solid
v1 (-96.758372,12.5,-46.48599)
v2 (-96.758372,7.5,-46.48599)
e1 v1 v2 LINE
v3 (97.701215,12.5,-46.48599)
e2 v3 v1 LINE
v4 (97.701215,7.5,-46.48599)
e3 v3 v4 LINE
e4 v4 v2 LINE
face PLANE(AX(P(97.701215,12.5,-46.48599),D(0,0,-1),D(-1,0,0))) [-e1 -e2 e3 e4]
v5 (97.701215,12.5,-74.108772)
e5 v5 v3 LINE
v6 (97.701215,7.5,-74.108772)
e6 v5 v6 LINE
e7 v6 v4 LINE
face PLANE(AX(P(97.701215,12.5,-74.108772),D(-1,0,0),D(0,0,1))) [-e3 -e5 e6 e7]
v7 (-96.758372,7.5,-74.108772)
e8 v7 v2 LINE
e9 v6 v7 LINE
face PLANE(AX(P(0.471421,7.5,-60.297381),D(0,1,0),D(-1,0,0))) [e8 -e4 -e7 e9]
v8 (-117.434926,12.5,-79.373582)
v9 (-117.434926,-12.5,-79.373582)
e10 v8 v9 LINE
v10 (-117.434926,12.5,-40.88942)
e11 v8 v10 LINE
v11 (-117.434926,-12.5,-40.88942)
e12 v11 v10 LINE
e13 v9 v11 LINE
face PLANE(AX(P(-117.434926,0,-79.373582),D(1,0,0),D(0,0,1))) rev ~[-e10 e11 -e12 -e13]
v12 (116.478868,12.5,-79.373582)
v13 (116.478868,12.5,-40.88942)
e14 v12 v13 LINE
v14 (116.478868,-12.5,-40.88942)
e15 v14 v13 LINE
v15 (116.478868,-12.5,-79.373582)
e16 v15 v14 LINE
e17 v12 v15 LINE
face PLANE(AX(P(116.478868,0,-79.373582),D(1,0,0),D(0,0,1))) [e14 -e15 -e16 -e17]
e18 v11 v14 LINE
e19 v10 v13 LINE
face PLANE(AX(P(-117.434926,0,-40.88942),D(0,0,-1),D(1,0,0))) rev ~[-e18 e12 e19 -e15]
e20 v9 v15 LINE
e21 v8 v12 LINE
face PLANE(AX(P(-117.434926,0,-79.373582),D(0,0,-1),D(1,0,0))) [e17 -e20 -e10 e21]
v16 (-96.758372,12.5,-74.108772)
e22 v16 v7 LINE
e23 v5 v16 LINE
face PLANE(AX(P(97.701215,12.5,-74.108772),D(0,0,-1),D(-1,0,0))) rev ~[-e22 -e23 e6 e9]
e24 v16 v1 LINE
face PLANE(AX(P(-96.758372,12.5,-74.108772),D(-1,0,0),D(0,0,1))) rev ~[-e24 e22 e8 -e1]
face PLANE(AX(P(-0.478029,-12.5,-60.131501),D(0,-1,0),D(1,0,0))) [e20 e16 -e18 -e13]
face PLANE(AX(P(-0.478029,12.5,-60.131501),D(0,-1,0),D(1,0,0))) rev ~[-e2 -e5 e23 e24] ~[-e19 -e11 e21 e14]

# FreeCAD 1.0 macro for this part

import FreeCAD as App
import Part
import Sketcher
from FreeCAD import Vector
Q = App.Units.Quantity

doc = App.newDocument("Part")
body = doc.addObject("PartDesign::Body", "Body")

# Sketch on XZ plane
sketch1 = body.newObject("Sketcher::SketchObject", "Sketch")
sketch1.AttachmentSupport = (doc.getObject("XZ_Plane"), [""])
sketch1.MapMode = "FlatFace"
sketch1.addGeometry([
    Part.LineSegment(Vector(-117.434926, -40.88942, 0), Vector(-117.434926, -79.373582, 0)),
    Part.LineSegment(Vector(-117.434926, -79.373582, 0), Vector(116.478868, -79.373582, 0)),
    Part.LineSegment(Vector(116.478868, -79.373582, 0), Vector(116.478868, -40.88942, 0)),
    Part.LineSegment(Vector(116.478868, -40.88942, 0), Vector(-117.434926, -40.88942, 0)),
], False)
sketch1.addConstraint([
    Sketcher.Constraint("Coincident", 0, 2, 1, 1),
    Sketcher.Constraint("Coincident", 1, 2, 2, 1),
    Sketcher.Constraint("Coincident", 2, 2, 3, 1),
    Sketcher.Constraint("Coincident", 3, 2, 0, 1),
    Sketcher.Constraint("Vertical", 0),
    Sketcher.Constraint("Horizontal", 1),
    Sketcher.Constraint("Vertical", 2),
    Sketcher.Constraint("Horizontal", 3),
    Sketcher.Constraint("DistanceX", 1, 1, 1, 2, Q("233.913794 mm")),
    Sketcher.Constraint("DistanceY", 0, 2, 0, 1, Q("38.484163 mm")),
    Sketcher.Constraint("DistanceX", -1, 1, 1, 2, Q("116.478868 mm")),
    Sketcher.Constraint("DistanceY", 2, 2, -1, 1, Q("40.88942 mm")),
])
pad1 = body.newObject("PartDesign::Pad", "Pad")
pad1.Profile = sketch1
pad1.Length = 25
pad1.Midplane = True

# Sketch on XZ plane
sketch2 = body.newObject("Sketcher::SketchObject", "Sketch001")
sketch2.AttachmentSupport = (doc.getObject("XZ_Plane"), [""])
sketch2.MapMode = "FlatFace"
sketch2.AttachmentOffset = App.Placement(Vector(0, 0, -12.5), App.Rotation())
sketch2.addGeometry([
    Part.LineSegment(Vector(97.701215, -46.48599, 0), Vector(97.701215, -74.108772, 0)),
    Part.LineSegment(Vector(97.701215, -74.108772, 0), Vector(-96.758372, -74.108772, 0)),
    Part.LineSegment(Vector(-96.758372, -74.108772, 0), Vector(-96.758372, -46.48599, 0)),
    Part.LineSegment(Vector(-96.758372, -46.48599, 0), Vector(97.701215, -46.48599, 0)),
], False)
sketch2.addConstraint([
    Sketcher.Constraint("Coincident", 0, 2, 1, 1),
    Sketcher.Constraint("Coincident", 1, 2, 2, 1),
    Sketcher.Constraint("Coincident", 2, 2, 3, 1),
    Sketcher.Constraint("Coincident", 3, 2, 0, 1),
    Sketcher.Constraint("Vertical", 0),
    Sketcher.Constraint("Horizontal", 1),
    Sketcher.Constraint("Vertical", 2),
    Sketcher.Constraint("Horizontal", 3),
    Sketcher.Constraint("DistanceX", 1, 2, 1, 1, Q("194.459587 mm")),
    Sketcher.Constraint("DistanceY", 0, 2, 0, 1, Q("27.622782 mm")),
    Sketcher.Constraint("DistanceY", 0, 2, -1, 1, Q("74.108772 mm")),
    Sketcher.Constraint("DistanceX", -1, 1, 0, 2, Q("97.701215 mm")),
])
pocket1 = body.newObject("PartDesign::Pocket", "Pocket")
pocket1.Profile = sketch2
pocket1.Length = 5
pocket1.Reversed = True

doc.recompute()
